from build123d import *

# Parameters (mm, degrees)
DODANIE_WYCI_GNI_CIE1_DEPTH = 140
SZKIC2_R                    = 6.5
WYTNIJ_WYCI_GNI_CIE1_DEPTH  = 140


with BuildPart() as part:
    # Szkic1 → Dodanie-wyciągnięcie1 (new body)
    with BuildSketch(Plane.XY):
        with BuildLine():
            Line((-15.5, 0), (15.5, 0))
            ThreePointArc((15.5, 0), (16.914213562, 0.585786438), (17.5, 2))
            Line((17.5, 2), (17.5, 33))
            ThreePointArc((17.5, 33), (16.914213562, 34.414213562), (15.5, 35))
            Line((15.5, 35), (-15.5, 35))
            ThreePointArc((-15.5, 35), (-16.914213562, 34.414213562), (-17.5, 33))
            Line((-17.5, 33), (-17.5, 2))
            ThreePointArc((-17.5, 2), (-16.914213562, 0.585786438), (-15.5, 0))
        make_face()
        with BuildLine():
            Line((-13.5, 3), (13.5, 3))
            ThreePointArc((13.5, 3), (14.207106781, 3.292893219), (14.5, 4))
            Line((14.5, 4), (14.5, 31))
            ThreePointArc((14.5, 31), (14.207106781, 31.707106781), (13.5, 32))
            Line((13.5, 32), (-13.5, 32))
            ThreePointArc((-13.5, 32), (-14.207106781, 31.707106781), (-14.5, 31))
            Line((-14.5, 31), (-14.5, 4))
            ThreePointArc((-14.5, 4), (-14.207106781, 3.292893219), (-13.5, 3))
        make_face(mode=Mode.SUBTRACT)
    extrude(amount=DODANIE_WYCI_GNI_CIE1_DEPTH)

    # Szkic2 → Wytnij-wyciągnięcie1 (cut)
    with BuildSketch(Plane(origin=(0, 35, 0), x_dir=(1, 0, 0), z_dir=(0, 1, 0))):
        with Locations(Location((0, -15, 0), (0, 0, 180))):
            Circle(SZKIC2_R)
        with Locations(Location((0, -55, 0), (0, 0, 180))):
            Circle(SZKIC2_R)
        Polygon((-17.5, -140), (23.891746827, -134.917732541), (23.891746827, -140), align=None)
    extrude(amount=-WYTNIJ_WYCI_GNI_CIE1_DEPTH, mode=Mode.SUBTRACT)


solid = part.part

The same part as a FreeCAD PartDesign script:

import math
import FreeCAD as App
import Part
import Sketcher
Q = App.Units.Quantity

doc = App.newDocument("Part")
body = doc.addObject("PartDesign::Body", "Body")

# Sketch on XY plane
sketch1 = body.newObject("Sketcher::SketchObject", "Sketch")
sketch1.AttachmentSupport = (doc.getObject("XY_Plane"), [""])
sketch1.MapMode = "FlatFace"
sketch1.addGeometry([
    Part.LineSegment(App.Vector(-15.5, 0, 0), App.Vector(15.5, 0, 0)),  # 0
    Part.ArcOfCircle(Part.Circle(App.Vector(15.5, 2, 0), App.Vector(0, 0, 1), 2), math.radians(-90), math.radians(0)),  # 1
    Part.LineSegment(App.Vector(17.5, 2, 0), App.Vector(17.5, 33, 0)),  # 2
    Part.ArcOfCircle(Part.Circle(App.Vector(15.5, 33, 0), App.Vector(0, 0, 1), 2), math.radians(0), math.radians(90)),  # 3
    Part.LineSegment(App.Vector(15.5, 35, 0), App.Vector(-15.5, 35, 0)),  # 4
    Part.ArcOfCircle(Part.Circle(App.Vector(-15.5, 33, 0), App.Vector(0, 0, 1), 2), math.radians(90), math.radians(180)),  # 5
    Part.LineSegment(App.Vector(-17.5, 33, 0), App.Vector(-17.5, 2, 0)),  # 6
    Part.ArcOfCircle(Part.Circle(App.Vector(-15.5, 2, 0), App.Vector(0, 0, 1), 2), math.radians(-180), math.radians(-90)),  # 7
    Part.LineSegment(App.Vector(13.5, 3, 0), App.Vector(-13.5, 3, 0)),  # 8
    Part.ArcOfCircle(Part.Circle(App.Vector(-13.5, 4, 0), App.Vector(0, 0, 1), 1), math.radians(-180), math.radians(-90)),  # 9
    Part.LineSegment(App.Vector(-14.5, 4, 0), App.Vector(-14.5, 31, 0)),  # 10
    Part.ArcOfCircle(Part.Circle(App.Vector(-13.5, 31, 0), App.Vector(0, 0, 1), 1), math.radians(90), math.radians(180)),  # 11
    Part.LineSegment(App.Vector(-13.5, 32, 0), App.Vector(13.5, 32, 0)),  # 12
    Part.ArcOfCircle(Part.Circle(App.Vector(13.5, 31, 0), App.Vector(0, 0, 1), 1), math.radians(0), math.radians(90)),  # 13
    Part.LineSegment(App.Vector(14.5, 31, 0), App.Vector(14.5, 4, 0)),  # 14
    Part.ArcOfCircle(Part.Circle(App.Vector(13.5, 4, 0), App.Vector(0, 0, 1), 1), math.radians(-90), math.radians(0)),  # 15
], False)
sketch1.addConstraint([
    Sketcher.Constraint("Tangent", 0, 2, 1, 1),
    Sketcher.Constraint("Tangent", 1, 2, 2, 1),
    Sketcher.Constraint("Tangent", 2, 2, 3, 1),
    Sketcher.Constraint("Tangent", 3, 2, 4, 1),
    Sketcher.Constraint("Tangent", 4, 2, 5, 1),
    Sketcher.Constraint("Tangent", 5, 2, 6, 1),
    Sketcher.Constraint("Tangent", 6, 2, 7, 1),
    Sketcher.Constraint("Tangent", 7, 2, 0, 1),
    Sketcher.Constraint("Tangent", 8, 2, 9, 2),
    Sketcher.Constraint("Tangent", 9, 1, 10, 1),
    Sketcher.Constraint("Tangent", 10, 2, 11, 2),
    Sketcher.Constraint("Tangent", 11, 1, 12, 1),
    Sketcher.Constraint("Tangent", 12, 2, 13, 2),
    Sketcher.Constraint("Tangent", 13, 1, 14, 1),
    Sketcher.Constraint("Tangent", 14, 2, 15, 2),
    Sketcher.Constraint("Tangent", 15, 1, 8, 1),
    Sketcher.Constraint("Horizontal", 0),
    Sketcher.Constraint("Vertical", 2),
    Sketcher.Constraint("Horizontal", 4),
    Sketcher.Constraint("Vertical", 6),
    Sketcher.Constraint("Horizontal", 8),
    Sketcher.Constraint("Vertical", 10),
    Sketcher.Constraint("Horizontal", 12),
    Sketcher.Constraint("Vertical", 14),
    Sketcher.Constraint("Equal", 1, 3),
    Sketcher.Constraint("Equal", 3, 5),
    Sketcher.Constraint("Equal", 5, 7),
    Sketcher.Constraint("Equal", 9, 11),
    Sketcher.Constraint("Equal", 11, 13),
    Sketcher.Constraint("Equal", 13, 15),
    Sketcher.Constraint("Symmetric", 0, 2, 7, 2, -1, 1),
    Sketcher.Constraint("Equal", 4, 2),
    Sketcher.Constraint("Equal", 12, 10),
    Sketcher.Constraint("Radius", 1, 2.0),
    Sketcher.Constraint("Radius", 9, 1.0),
    Sketcher.Constraint("DistanceX", 0, 1, 0, 2, 31.0),
    Sketcher.Constraint("DistanceX", 8, 2, 8, 1, 27.0),
    Sketcher.Constraint("DistanceY", -1, 1, 9, 3, 4.0),
    Sketcher.Constraint("DistanceX", 7, 3, 9, 3, 2.0),
])
pad1 = body.newObject("PartDesign::Pad", "Pad")
pad1.Profile = sketch1
pad1.Length = 140

# Sketch on XZ plane
sketch2 = body.newObject("Sketcher::SketchObject", "Sketch001")
sketch2.AttachmentSupport = (doc.getObject("XZ_Plane"), [""])
sketch2.MapMode = "FlatFace"
sketch2.AttachmentOffset = App.Placement(App.Vector(0, 0, -35), App.Rotation())
sketch2.addGeometry([
    Part.Circle(App.Vector(0, 15, 0), App.Vector(0, 0, 1), 6),  # 0
    Part.Circle(App.Vector(0, 55, 0), App.Vector(0, 0, 1), 6),  # 1
    Part.LineSegment(App.Vector(24, 135, 0), App.Vector(-18, 140, 0)),  # 2
    Part.LineSegment(App.Vector(-18, 140, 0), App.Vector(24, 140, 0)),  # 3
    Part.LineSegment(App.Vector(24, 140, 0), App.Vector(24, 135, 0)),  # 4
], False)
sketch2.addConstraint([
    Sketcher.Constraint("Coincident", 2, 2, 3, 1),
    Sketcher.Constraint("Coincident", 3, 2, 4, 1),
    Sketcher.Constraint("Coincident", 4, 2, 2, 1),
    Sketcher.Constraint("Horizontal", 3),
    Sketcher.Constraint("Vertical", 4),
    Sketcher.Constraint("Equal", 0, 1),
    Sketcher.Constraint("PointOnObject", 0, 3, -2),
    Sketcher.Constraint("PointOnObject", 1, 3, -2),
    Sketcher.Constraint("Diameter", 0, 13.0),
    Sketcher.Constraint("Angle", 2, Q("173 deg")),
    Sketcher.Constraint("DistanceY", -1, 1, 0, 3, 15.0),
    Sketcher.Constraint("DistanceY", -1, 1, 1, 3, 55.0),
    Sketcher.Constraint("DistanceY", -1, 1, 2, 2, 140.0),
    Sketcher.Constraint("DistanceX", 2, 2, -1, 1, 17.5),
    Sketcher.Constraint("Distance", 2, 41.702592),
])
pocket1 = body.newObject("PartDesign::Pocket", "Pocket")
pocket1.Profile = sketch2
pocket1.Length = 140
pocket1.Reversed = True

doc.recompute()
